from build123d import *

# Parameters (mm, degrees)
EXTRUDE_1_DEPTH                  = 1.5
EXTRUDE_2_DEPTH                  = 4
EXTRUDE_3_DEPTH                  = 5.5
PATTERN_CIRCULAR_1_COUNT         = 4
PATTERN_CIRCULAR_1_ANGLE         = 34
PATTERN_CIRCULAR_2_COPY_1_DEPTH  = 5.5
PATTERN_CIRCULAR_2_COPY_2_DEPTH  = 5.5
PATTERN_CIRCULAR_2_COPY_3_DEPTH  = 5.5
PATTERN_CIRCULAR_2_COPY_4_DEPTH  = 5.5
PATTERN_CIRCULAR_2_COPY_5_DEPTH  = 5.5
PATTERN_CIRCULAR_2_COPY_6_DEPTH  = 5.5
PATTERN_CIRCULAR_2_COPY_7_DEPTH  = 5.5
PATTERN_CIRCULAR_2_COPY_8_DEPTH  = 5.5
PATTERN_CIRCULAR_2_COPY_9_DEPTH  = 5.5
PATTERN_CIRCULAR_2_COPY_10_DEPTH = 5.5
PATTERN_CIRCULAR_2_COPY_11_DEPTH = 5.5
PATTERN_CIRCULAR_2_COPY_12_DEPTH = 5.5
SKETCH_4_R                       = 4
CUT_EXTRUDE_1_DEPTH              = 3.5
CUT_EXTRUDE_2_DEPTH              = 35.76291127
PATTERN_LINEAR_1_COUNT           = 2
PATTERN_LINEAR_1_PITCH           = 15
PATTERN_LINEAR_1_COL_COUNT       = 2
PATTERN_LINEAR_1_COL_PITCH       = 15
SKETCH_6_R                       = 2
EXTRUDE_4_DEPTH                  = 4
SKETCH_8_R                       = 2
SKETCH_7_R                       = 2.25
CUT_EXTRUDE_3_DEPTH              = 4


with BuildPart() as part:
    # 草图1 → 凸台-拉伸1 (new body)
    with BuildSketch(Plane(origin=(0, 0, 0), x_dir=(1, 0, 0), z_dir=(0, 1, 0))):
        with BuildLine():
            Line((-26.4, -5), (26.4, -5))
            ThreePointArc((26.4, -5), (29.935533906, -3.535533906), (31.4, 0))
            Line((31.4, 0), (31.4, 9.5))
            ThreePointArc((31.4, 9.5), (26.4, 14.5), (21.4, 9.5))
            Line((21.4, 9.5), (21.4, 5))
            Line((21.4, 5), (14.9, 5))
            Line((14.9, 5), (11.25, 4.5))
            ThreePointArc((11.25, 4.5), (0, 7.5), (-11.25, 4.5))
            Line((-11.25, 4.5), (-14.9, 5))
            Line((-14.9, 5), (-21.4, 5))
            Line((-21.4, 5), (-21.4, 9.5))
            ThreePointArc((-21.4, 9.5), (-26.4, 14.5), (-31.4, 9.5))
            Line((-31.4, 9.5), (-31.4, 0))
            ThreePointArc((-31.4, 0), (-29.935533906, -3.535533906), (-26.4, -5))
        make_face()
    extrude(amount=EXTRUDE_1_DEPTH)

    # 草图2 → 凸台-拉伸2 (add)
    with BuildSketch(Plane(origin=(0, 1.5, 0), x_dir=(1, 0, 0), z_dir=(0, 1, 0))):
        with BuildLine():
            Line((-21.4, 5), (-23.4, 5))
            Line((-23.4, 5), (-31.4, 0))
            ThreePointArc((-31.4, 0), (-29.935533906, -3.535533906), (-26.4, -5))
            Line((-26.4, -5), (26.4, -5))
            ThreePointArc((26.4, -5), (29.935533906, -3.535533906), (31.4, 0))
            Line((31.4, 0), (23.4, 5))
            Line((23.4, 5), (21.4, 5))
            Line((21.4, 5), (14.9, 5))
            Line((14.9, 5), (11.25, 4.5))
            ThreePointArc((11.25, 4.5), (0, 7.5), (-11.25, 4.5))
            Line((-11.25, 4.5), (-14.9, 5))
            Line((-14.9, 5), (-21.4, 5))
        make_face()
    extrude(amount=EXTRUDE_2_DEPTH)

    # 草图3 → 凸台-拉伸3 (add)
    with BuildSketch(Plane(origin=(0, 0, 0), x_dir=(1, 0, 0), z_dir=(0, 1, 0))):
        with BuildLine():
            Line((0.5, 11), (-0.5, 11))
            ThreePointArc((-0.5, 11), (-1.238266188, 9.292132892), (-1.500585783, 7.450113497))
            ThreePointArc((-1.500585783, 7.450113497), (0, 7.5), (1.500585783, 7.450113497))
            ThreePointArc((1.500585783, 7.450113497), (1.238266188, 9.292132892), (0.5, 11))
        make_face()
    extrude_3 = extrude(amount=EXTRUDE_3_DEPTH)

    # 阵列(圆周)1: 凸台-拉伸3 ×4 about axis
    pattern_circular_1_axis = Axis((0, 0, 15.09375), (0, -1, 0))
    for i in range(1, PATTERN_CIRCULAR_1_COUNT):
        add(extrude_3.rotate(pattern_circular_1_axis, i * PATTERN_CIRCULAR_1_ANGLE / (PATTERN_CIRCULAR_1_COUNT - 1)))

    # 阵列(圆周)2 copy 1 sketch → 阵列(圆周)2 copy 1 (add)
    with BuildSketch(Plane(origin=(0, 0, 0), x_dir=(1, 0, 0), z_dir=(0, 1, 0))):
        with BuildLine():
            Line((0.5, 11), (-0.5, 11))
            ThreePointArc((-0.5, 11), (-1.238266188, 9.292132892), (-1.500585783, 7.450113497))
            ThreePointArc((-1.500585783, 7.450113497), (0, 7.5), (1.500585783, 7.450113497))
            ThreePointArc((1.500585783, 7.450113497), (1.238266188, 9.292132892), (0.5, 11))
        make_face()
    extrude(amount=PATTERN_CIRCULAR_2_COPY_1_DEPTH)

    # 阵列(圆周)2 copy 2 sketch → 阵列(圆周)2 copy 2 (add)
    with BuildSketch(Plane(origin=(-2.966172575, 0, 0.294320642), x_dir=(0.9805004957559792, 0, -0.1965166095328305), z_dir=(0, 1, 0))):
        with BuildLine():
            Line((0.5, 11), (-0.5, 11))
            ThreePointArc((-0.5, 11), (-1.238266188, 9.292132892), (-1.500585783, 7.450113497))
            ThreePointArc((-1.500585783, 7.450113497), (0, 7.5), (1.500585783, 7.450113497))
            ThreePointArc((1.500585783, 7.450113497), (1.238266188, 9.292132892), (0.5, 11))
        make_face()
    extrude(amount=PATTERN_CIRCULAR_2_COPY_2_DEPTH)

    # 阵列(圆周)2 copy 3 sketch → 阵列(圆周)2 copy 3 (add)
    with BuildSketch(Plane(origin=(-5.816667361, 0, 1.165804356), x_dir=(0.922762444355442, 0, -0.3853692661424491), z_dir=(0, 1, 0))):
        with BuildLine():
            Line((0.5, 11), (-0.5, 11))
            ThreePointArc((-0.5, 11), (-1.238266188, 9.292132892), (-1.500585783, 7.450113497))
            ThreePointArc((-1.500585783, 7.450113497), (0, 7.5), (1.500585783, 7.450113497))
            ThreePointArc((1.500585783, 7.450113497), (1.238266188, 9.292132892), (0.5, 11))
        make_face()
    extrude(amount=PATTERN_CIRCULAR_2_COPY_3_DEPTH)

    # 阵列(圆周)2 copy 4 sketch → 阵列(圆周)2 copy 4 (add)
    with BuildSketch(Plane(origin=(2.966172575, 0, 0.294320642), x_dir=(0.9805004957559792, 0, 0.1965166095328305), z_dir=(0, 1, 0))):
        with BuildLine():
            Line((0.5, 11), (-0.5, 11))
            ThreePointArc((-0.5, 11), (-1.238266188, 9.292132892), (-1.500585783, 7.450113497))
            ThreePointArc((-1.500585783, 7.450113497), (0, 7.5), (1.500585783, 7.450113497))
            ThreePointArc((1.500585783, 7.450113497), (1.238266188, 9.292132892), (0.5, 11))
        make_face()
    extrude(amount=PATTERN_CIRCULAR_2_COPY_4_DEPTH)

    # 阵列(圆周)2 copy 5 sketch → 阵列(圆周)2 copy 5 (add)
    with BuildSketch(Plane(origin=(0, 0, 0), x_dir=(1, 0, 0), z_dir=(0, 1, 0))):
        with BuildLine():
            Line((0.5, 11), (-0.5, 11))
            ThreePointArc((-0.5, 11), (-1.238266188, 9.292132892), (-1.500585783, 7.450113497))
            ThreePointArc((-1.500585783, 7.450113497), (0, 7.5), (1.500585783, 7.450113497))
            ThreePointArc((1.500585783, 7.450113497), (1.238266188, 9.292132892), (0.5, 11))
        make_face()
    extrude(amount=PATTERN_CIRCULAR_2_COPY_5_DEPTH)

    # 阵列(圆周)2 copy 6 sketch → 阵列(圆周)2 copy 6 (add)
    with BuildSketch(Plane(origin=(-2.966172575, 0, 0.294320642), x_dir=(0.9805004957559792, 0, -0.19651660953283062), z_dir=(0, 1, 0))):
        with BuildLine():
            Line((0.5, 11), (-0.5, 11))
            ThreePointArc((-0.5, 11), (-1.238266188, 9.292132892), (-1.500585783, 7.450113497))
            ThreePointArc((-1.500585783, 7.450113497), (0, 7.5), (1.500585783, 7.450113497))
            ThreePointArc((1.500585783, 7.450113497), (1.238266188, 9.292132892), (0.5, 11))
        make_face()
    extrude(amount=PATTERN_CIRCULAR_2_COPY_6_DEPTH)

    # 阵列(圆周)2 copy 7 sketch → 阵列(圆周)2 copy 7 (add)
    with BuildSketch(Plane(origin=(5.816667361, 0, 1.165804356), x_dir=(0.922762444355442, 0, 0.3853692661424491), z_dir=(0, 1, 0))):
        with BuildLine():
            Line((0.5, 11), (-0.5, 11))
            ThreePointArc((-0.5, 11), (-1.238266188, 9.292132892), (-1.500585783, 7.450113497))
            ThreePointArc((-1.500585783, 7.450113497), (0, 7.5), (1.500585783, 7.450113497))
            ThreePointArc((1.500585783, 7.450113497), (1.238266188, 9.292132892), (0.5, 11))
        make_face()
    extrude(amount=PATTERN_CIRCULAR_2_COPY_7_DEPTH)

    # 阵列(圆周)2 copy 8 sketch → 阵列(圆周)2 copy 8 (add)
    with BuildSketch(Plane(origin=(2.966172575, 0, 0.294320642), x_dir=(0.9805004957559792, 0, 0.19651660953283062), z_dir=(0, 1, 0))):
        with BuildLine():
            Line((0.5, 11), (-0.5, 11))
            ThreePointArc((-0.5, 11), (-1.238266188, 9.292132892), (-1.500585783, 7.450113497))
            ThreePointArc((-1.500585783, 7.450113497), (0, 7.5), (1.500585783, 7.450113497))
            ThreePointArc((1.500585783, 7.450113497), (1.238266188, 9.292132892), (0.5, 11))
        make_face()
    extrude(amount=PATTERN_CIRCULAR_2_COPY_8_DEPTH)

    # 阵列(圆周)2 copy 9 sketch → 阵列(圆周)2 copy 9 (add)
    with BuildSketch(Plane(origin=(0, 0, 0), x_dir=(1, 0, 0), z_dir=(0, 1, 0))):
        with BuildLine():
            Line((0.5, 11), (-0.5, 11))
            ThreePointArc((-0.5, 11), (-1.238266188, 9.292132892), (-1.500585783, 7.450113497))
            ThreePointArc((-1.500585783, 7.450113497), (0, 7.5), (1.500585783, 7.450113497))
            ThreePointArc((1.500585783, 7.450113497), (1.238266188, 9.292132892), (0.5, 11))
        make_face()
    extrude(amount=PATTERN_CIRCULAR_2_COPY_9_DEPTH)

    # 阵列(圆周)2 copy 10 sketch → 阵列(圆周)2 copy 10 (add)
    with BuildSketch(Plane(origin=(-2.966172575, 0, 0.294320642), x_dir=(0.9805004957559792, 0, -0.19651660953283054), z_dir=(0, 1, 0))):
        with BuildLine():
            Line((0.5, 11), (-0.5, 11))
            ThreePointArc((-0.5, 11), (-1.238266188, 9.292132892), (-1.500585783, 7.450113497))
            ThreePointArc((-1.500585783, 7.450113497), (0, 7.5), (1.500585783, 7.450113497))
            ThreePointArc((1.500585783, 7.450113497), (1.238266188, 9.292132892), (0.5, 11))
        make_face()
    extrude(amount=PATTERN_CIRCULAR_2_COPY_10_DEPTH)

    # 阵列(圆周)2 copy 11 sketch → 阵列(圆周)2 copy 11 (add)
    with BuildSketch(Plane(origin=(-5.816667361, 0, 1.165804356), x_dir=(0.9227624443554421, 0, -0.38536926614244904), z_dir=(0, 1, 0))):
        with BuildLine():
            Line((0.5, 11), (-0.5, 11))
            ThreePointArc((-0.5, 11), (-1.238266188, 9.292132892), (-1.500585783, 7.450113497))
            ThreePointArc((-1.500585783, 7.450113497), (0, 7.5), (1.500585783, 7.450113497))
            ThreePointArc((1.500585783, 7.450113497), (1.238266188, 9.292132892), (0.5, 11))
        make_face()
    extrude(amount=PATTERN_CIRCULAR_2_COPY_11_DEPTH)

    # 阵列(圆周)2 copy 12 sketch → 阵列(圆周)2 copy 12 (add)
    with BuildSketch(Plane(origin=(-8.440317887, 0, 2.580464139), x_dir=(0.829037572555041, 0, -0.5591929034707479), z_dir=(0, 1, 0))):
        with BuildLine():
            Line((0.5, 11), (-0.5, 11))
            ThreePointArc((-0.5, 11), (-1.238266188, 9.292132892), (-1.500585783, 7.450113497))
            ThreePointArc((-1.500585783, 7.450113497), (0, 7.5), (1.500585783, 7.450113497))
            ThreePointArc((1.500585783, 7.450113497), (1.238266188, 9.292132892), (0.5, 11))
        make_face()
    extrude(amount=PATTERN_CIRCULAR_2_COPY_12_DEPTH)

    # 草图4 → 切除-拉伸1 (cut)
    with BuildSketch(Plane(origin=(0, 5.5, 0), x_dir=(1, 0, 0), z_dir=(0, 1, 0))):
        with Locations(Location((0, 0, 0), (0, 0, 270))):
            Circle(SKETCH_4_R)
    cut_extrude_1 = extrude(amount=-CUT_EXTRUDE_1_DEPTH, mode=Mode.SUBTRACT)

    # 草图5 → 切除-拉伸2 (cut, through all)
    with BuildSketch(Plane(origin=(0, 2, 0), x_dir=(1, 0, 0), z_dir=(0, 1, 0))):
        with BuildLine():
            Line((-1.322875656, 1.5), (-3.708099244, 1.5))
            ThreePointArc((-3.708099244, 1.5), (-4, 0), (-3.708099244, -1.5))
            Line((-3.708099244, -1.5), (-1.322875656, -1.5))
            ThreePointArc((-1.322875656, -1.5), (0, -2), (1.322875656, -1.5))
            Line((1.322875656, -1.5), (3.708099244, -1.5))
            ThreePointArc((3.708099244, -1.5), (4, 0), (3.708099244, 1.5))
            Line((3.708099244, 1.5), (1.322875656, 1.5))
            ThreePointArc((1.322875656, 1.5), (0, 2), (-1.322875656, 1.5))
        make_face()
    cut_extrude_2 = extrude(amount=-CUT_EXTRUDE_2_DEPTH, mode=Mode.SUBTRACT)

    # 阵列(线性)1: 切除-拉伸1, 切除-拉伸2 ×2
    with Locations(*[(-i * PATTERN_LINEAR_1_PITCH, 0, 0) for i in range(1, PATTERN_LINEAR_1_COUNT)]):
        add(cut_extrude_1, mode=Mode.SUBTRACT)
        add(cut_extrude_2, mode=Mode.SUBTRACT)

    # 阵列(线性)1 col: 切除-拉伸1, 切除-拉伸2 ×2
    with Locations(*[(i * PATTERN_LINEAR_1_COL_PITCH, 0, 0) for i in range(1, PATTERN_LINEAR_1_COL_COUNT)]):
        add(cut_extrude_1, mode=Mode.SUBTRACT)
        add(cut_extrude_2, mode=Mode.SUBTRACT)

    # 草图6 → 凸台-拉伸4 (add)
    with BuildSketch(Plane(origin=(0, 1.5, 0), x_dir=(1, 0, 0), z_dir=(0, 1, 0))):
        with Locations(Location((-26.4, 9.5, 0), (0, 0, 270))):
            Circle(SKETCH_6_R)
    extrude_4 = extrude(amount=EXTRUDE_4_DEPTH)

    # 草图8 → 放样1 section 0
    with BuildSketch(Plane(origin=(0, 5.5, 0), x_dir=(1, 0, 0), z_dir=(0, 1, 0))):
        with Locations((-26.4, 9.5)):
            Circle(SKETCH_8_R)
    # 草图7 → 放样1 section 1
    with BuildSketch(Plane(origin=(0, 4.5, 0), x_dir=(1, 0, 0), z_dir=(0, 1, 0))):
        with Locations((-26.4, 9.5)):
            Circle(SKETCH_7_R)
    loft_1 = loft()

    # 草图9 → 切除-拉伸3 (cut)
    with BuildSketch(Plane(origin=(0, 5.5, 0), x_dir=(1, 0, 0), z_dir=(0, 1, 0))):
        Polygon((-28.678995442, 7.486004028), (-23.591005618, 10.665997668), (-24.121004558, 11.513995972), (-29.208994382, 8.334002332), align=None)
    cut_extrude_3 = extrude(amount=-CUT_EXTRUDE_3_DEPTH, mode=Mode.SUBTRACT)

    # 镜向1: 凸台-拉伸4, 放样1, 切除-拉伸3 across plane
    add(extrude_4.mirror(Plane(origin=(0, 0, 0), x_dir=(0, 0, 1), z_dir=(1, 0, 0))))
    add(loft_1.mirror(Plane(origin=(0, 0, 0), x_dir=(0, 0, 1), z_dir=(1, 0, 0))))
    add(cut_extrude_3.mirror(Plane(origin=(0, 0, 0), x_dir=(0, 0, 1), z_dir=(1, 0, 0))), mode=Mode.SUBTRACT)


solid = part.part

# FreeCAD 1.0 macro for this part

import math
import FreeCAD as App
import Part
import Sketcher

V = App.Vector
Q = App.Units.Quantity

doc = App.newDocument("Part")
body = doc.addObject("PartDesign::Body", "Body")

# Sketch on XZ plane
sketch1 = body.newObject("Sketcher::SketchObject", "Sketch")
sketch1.AttachmentSupport = (doc.getObject("XZ_Plane"), [""])
sketch1.MapMode = "FlatFace"
sketch1.addGeometry(Part.LineSegment(V(-26.4, 5, 0), V(26.4, 5, 0)), False)
sketch1.addGeometry(Part.ArcOfCircle(Part.Circle(V(26.4, 0, 0), V(0, 0, 1), 5), math.radians(0), math.radians(90)), False)
sketch1.addGeometry(Part.LineSegment(V(31.4, 0, 0), V(31.4, -9.5, 0)), False)
sketch1.addGeometry(Part.ArcOfCircle(Part.Circle(V(26.4, -9.5, 0), V(0, 0, 1), 5), math.radians(180), math.radians(360)), False)
sketch1.addGeometry(Part.LineSegment(V(21.4, -9.5, 0), V(21.4, -5, 0)), False)
sketch1.addGeometry(Part.LineSegment(V(21.4, -5, 0), V(14.9, -5, 0)), False)
sketch1.addGeometry(Part.LineSegment(V(14.9, -5, 0), V(11.2, -4.5, 0)), False)
sketch1.addGeometry(Part.ArcOfCircle(Part.Circle(V(0, 15.1, 0), V(0, 0, 1), 22.6), math.radians(-120), math.radians(-60)), False)
sketch1.addGeometry(Part.LineSegment(V(-11.2, -4.5, 0), V(-14.9, -5, 0)), False)
sketch1.addGeometry(Part.LineSegment(V(-14.9, -5, 0), V(-21.4, -5, 0)), False)
sketch1.addGeometry(Part.LineSegment(V(-21.4, -5, 0), V(-21.4, -9.5, 0)), False)
sketch1.addGeometry(Part.ArcOfCircle(Part.Circle(V(-26.4, -9.5, 0), V(0, 0, 1), 5), math.radians(180), math.radians(360)), False)
sketch1.addGeometry(Part.LineSegment(V(-31.4, -9.5, 0), V(-31.4, 0, 0)), False)
sketch1.addGeometry(Part.ArcOfCircle(Part.Circle(V(-26.4, 0, 0), V(0, 0, 1), 5), math.radians(90), math.radians(180)), False)
sketch1.addConstraint(Sketcher.Constraint("Tangent", 0, 2, 1, 2))
sketch1.addConstraint(Sketcher.Constraint("Tangent", 1, 1, 2, 1))
sketch1.addConstraint(Sketcher.Constraint("Tangent", 2, 2, 3, 2))
sketch1.addConstraint(Sketcher.Constraint("Tangent", 3, 1, 4, 1))
sketch1.addConstraint(Sketcher.Constraint("Coincident", 4, 2, 5, 1))
sketch1.addConstraint(Sketcher.Constraint("Coincident", 5, 2, 6, 1))
sketch1.addConstraint(Sketcher.Constraint("Coincident", 6, 2, 7, 2))
sketch1.addConstraint(Sketcher.Constraint("Coincident", 7, 1, 8, 1))
sketch1.addConstraint(Sketcher.Constraint("Coincident", 8, 2, 9, 1))
sketch1.addConstraint(Sketcher.Constraint("Coincident", 9, 2, 10, 1))
sketch1.addConstraint(Sketcher.Constraint("Tangent", 10, 2, 11, 2))
sketch1.addConstraint(Sketcher.Constraint("Tangent", 11, 1, 12, 1))
sketch1.addConstraint(Sketcher.Constraint("Tangent", 12, 2, 13, 2))
sketch1.addConstraint(Sketcher.Constraint("Tangent", 13, 1, 0, 1))
sketch1.addConstraint(Sketcher.Constraint("Horizontal", 0))
sketch1.addConstraint(Sketcher.Constraint("Vertical", 2))
sketch1.addConstraint(Sketcher.Constraint("Vertical", 4))
sketch1.addConstraint(Sketcher.Constraint("Horizontal", 5))
sketch1.addConstraint(Sketcher.Constraint("Horizontal", 9))
sketch1.addConstraint(Sketcher.Constraint("Vertical", 10))
sketch1.addConstraint(Sketcher.Constraint("Vertical", 12))
sketch1.addConstraint(Sketcher.Constraint("Equal", 1, 3))
sketch1.addConstraint(Sketcher.Constraint("Equal", 3, 11))
sketch1.addConstraint(Sketcher.Constraint("Equal", 11, 13))
sketch1.addConstraint(Sketcher.Constraint("Symmetric", 1, 3, 13, 3, -1, 1))
sketch1.addConstraint(Sketcher.Constraint("Symmetric", 6, 2, 7, 1, -2))
sketch1.addConstraint(Sketcher.Constraint("Symmetric", 5, 2, 8, 2, -2))
sketch1.addConstraint(Sketcher.Constraint("Horizontal", 3, 3, 11, 3))
sketch1.addConstraint(Sketcher.Constraint("Radius", 1, Q("5 mm")))
sketch1.addConstraint(Sketcher.Constraint("DistanceX", 0, 1, 0, 2, Q("52.8 mm")))
sketch1.addConstraint(Sketcher.Constraint("DistanceX", 5, 2, 5, 1, Q("6.5 mm")))
sketch1.addConstraint(Sketcher.Constraint("DistanceY", 2, 2, 2, 1, Q("9.5 mm")))
sketch1.addConstraint(Sketcher.Constraint("DistanceY", 4, 1, 4, 2, Q("4.5 mm")))
sketch1.addConstraint(Sketcher.Constraint("DistanceY", 3, 1, 6, 2, Q("5 mm")))
sketch1.addConstraint(Sketcher.Constraint("DistanceX", 7, 1, 6, 2, Q("22.5 mm")))
sketch1.addConstraint(Sketcher.Constraint("Radius", 7, Q("22.59375 mm")))
pad1 = body.newObject("PartDesign::Pad", "Pad")
pad1.Profile = sketch1
pad1.Length = 1.5
pad1.Reversed = True

# Sketch on XZ plane
sketch2 = body.newObject("Sketcher::SketchObject", "Sketch001")
sketch2.AttachmentSupport = (doc.getObject("XZ_Plane"), [""])
sketch2.MapMode = "FlatFace"
sketch2.AttachmentOffset = App.Placement(V(0, 0, -1.5), App.Rotation())
sketch2.addGeometry(Part.LineSegment(V(-23.4, -5, 0), V(-31.4, 0, 0)), False)
sketch2.addGeometry(Part.ArcOfCircle(Part.Circle(V(-26.4, 0, 0), V(0, 0, 1), 5), math.radians(90), math.radians(180)), False)
sketch2.addGeometry(Part.LineSegment(V(-26.4, 5, 0), V(26.4, 5, 0)), False)
sketch2.addGeometry(Part.ArcOfCircle(Part.Circle(V(26.4, 0, 0), V(0, 0, 1), 5), math.radians(0), math.radians(90)), False)
sketch2.addGeometry(Part.LineSegment(V(31.4, 0, 0), V(23.4, -5, 0)), False)
sketch2.addGeometry(Part.LineSegment(V(23.4, -5, 0), V(14.9, -5, 0)), False)
sketch2.addGeometry(Part.LineSegment(V(14.9, -5, 0), V(11.2, -4.5, 0)), False)
sketch2.addGeometry(Part.ArcOfCircle(Part.Circle(V(0, 15.1, 0), V(0, 0, 1), 22.6), math.radians(-120), math.radians(-60)), False)
sketch2.addGeometry(Part.LineSegment(V(-11.2, -4.5, 0), V(-14.9, -5, 0)), False)
sketch2.addGeometry(Part.LineSegment(V(-14.9, -5, 0), V(-23.4, -5, 0)), False)
sketch2.addConstraint(Sketcher.Constraint("Coincident", 0, 2, 1, 2))
sketch2.addConstraint(Sketcher.Constraint("Tangent", 1, 1, 2, 1))
sketch2.addConstraint(Sketcher.Constraint("Tangent", 2, 2, 3, 2))
sketch2.addConstraint(Sketcher.Constraint("Coincident", 3, 1, 4, 1))
sketch2.addConstraint(Sketcher.Constraint("Coincident", 4, 2, 5, 1))
sketch2.addConstraint(Sketcher.Constraint("Coincident", 5, 2, 6, 1))
sketch2.addConstraint(Sketcher.Constraint("Coincident", 6, 2, 7, 2))
sketch2.addConstraint(Sketcher.Constraint("Coincident", 7, 1, 8, 1))
sketch2.addConstraint(Sketcher.Constraint("Coincident", 8, 2, 9, 1))
sketch2.addConstraint(Sketcher.Constraint("Coincident", 9, 2, 0, 1))
sketch2.addConstraint(Sketcher.Constraint("Horizontal", 2))
sketch2.addConstraint(Sketcher.Constraint("Horizontal", 5))
sketch2.addConstraint(Sketcher.Constraint("Horizontal", 9))
sketch2.addConstraint(Sketcher.Constraint("Equal", 1, 3))
sketch2.addConstraint(Sketcher.Constraint("Symmetric", 1, 3, 3, 3, -1, 1))
sketch2.addConstraint(Sketcher.Constraint("Symmetric", 6, 2, 7, 1, -2))
sketch2.addConstraint(Sketcher.Constraint("Symmetric", 5, 2, 8, 2, -2))
sketch2.addConstraint(Sketcher.Constraint("PointOnObject", 0, 2, -1))
sketch2.addConstraint(Sketcher.Constraint("PointOnObject", 3, 1, -1))
sketch2.addConstraint(Sketcher.Constraint("Equal", 5, 9))
sketch2.addConstraint(Sketcher.Constraint("Radius", 1, Q("5 mm")))
sketch2.addConstraint(Sketcher.Constraint("DistanceX", 2, 1, 2, 2, Q("52.8 mm")))
sketch2.addConstraint(Sketcher.Constraint("DistanceX", 5, 2, 5, 1, Q("8.5 mm")))
sketch2.addConstraint(Sketcher.Constraint("DistanceY", 4, 2, -1, 1, Q("5 mm")))
sketch2.addConstraint(Sketcher.Constraint("DistanceX", 4, 2, 3, 3, Q("3 mm")))
sketch2.addConstraint(Sketcher.Constraint("DistanceY", 6, 2, -1, 1, Q("4.5 mm")))
sketch2.addConstraint(Sketcher.Constraint("DistanceX", 7, 1, 6, 2, Q("22.5 mm")))
sketch2.addConstraint(Sketcher.Constraint("Radius", 7, Q("22.59375 mm")))
pad2 = body.newObject("PartDesign::Pad", "Pad001")
pad2.Profile = sketch2
pad2.Length = 4
pad2.Reversed = True

# Sketch on XZ plane
sketch3 = body.newObject("Sketcher::SketchObject", "Sketch002")
sketch3.AttachmentSupport = (doc.getObject("XZ_Plane"), [""])
sketch3.MapMode = "FlatFace"
sketch3.addGeometry(Part.LineSegment(V(0.5, -11, 0), V(-0.5, -11, 0)), False)
sketch3.addGeometry(Part.ArcOfCircle(Part.Circle(V(5.5, -7.4, 0), V(0, 0, 1), 7), math.radians(-180), math.radians(-149)), False)
sketch3.addGeometry(Part.ArcOfCircle(Part.Circle(V(0, 15.1, 0), V(0, 0, 1), 22.6), math.radians(-93.81), math.radians(-86.19)), False)
sketch3.addGeometry(Part.ArcOfCircle(Part.Circle(V(-5.5, -7.4, 0), V(0, 0, 1), 7), math.radians(-31), math.radians(0)), False)
sketch3.addConstraint(Sketcher.Constraint("Coincident", 0, 2, 1, 2))
sketch3.addConstraint(Sketcher.Constraint("Coincident", 1, 1, 2, 1))
sketch3.addConstraint(Sketcher.Constraint("Coincident", 2, 2, 3, 2))
sketch3.addConstraint(Sketcher.Constraint("Coincident", 3, 1, 0, 1))
sketch3.addConstraint(Sketcher.Constraint("Horizontal", 0))
sketch3.addConstraint(Sketcher.Constraint("Equal", 1, 3))
sketch3.addConstraint(Sketcher.Constraint("Symmetric", 1, 3, 3, 3, -2))
sketch3.addConstraint(Sketcher.Constraint("PointOnObject", 2, 3, -2))
sketch3.addConstraint(Sketcher.Constraint("DistanceX", 0, 2, 0, 1, Q("1 mm")))
sketch3.addConstraint(Sketcher.Constraint("DistanceY", 0, 2, -1, 1, Q("11 mm")))
sketch3.addConstraint(Sketcher.Constraint("DistanceX", 3, 3, 1, 3, Q("11 mm")))
sketch3.addConstraint(Sketcher.Constraint("Radius", 1, Q("7.00082 mm")))
sketch3.addConstraint(Sketcher.Constraint("Radius", 2, Q("22.59375 mm")))
sketch3.addConstraint(Sketcher.Constraint("DistanceY", -1, 1, 2, 3, Q("15.09375 mm")))
pad3 = body.newObject("PartDesign::Pad", "Pad002")
pad3.Profile = sketch3
pad3.Length = 5.5
pad3.Reversed = True
doc.recompute()

datumline = body.newObject("PartDesign::Line", "DatumLine")
datumline.Placement = App.Placement(V(0, 0, 15.09375), App.Rotation(V(0, 0, 1), V(0, -1, 0)))
polarpattern = body.newObject("PartDesign::PolarPattern", "PolarPattern")
polarpattern.Originals = [pad3]
polarpattern.Axis = (datumline, [""])
polarpattern.Angle = 34
polarpattern.Occurrences = 4
body.Tip = polarpattern

# Sketch on XZ plane
sketch4 = body.newObject("Sketcher::SketchObject", "Sketch003")
sketch4.AttachmentSupport = (doc.getObject("XZ_Plane"), [""])
sketch4.MapMode = "FlatFace"
sketch4.addGeometry(Part.LineSegment(V(0.5, -11, 0), V(-0.5, -11, 0)), False)
sketch4.addGeometry(Part.ArcOfCircle(Part.Circle(V(5.5, -7.4, 0), V(0, 0, 1), 7), math.radians(-180), math.radians(-149)), False)
sketch4.addGeometry(Part.ArcOfCircle(Part.Circle(V(0, 15.1, 0), V(0, 0, 1), 22.6), math.radians(-93.81), math.radians(-86.19)), False)
sketch4.addGeometry(Part.ArcOfCircle(Part.Circle(V(-5.5, -7.4, 0), V(0, 0, 1), 7), math.radians(-31), math.radians(0)), False)
sketch4.addConstraint(Sketcher.Constraint("Coincident", 0, 2, 1, 2))
sketch4.addConstraint(Sketcher.Constraint("Coincident", 1, 1, 2, 1))
sketch4.addConstraint(Sketcher.Constraint("Coincident", 2, 2, 3, 2))
sketch4.addConstraint(Sketcher.Constraint("Coincident", 3, 1, 0, 1))
sketch4.addConstraint(Sketcher.Constraint("Horizontal", 0))
sketch4.addConstraint(Sketcher.Constraint("Equal", 1, 3))
sketch4.addConstraint(Sketcher.Constraint("Symmetric", 1, 3, 3, 3, -2))
sketch4.addConstraint(Sketcher.Constraint("PointOnObject", 2, 3, -2))
sketch4.addConstraint(Sketcher.Constraint("DistanceX", 0, 2, 0, 1, Q("1 mm")))
sketch4.addConstraint(Sketcher.Constraint("DistanceY", 0, 2, -1, 1, Q("11 mm")))
sketch4.addConstraint(Sketcher.Constraint("DistanceX", 3, 3, 1, 3, Q("11 mm")))
sketch4.addConstraint(Sketcher.Constraint("Radius", 1, Q("7.00082 mm")))
sketch4.addConstraint(Sketcher.Constraint("Radius", 2, Q("22.59375 mm")))
sketch4.addConstraint(Sketcher.Constraint("DistanceY", -1, 1, 2, 3, Q("15.09375 mm")))
pad4 = body.newObject("PartDesign::Pad", "Pad003")
pad4.Profile = sketch4
pad4.Length = 5.5
pad4.Reversed = True

# Sketch on XZ plane
sketch5 = body.newObject("Sketcher::SketchObject", "Sketch004")
sketch5.AttachmentSupport = (doc.getObject("XZ_Plane"), [""])
sketch5.MapMode = "FlatFace"
sketch5.addGeometry(Part.LineSegment(V(-4.6, -10.6, 0), V(-5.6, -10.4, 0)), False)
sketch5.addGeometry(Part.ArcOfCircle(Part.Circle(V(1, -8, 0), V(0, 0, 1), 7), math.radians(169), math.radians(200)), False)
sketch5.addGeometry(Part.ArcOfCircle(Part.Circle(V(0, 15.1, 0), V(0, 0, 1), 22.6), math.radians(-105.14), math.radians(-97.53)), False)
sketch5.addGeometry(Part.ArcOfCircle(Part.Circle(V(-9.8, -5.9, 0), V(0, 0, 1), 7), math.radians(-42), math.radians(-12)), False)
sketch5.addConstraint(Sketcher.Constraint("Coincident", 0, 2, 1, 2))
sketch5.addConstraint(Sketcher.Constraint("Coincident", 1, 1, 2, 1))
sketch5.addConstraint(Sketcher.Constraint("Coincident", 2, 2, 3, 2))
sketch5.addConstraint(Sketcher.Constraint("Coincident", 3, 1, 0, 1))
sketch5.addConstraint(Sketcher.Constraint("Equal", 1, 3))
sketch5.addConstraint(Sketcher.Constraint("PointOnObject", 2, 3, -2))
sketch5.addConstraint(Sketcher.Constraint("Distance", 0, Q("1 mm")))
sketch5.addConstraint(Sketcher.Constraint("Radius", 1, Q("7.00082 mm")))
sketch5.addConstraint(Sketcher.Constraint("Radius", 2, Q("22.59375 mm")))
sketch5.addConstraint(Sketcher.Constraint("DistanceX", 0, 2, 3, 1, Q("0.9805 mm")))
sketch5.addConstraint(Sketcher.Constraint("DistanceX", -1, 1, 1, 3, Q("0.973761 mm")))
sketch5.addConstraint(Sketcher.Constraint("DistanceY", 1, 3, -1, 1, Q("8.035221 mm")))
sketch5.addConstraint(Sketcher.Constraint("DistanceY", -1, 1, 2, 3, Q("15.09375 mm")))
sketch5.addConstraint(Sketcher.Constraint("DistanceY", 3, 3, -1, 1, Q("5.873538 mm")))
sketch5.addConstraint(Sketcher.Constraint("DistanceX", 2, 2, -1, 1, Q("2.958919 mm")))
pad5 = body.newObject("PartDesign::Pad", "Pad004")
pad5.Profile = sketch5
pad5.Length = 5.5
pad5.Reversed = True

# Sketch on XZ plane
sketch6 = body.newObject("Sketcher::SketchObject", "Sketch005")
sketch6.AttachmentSupport = (doc.getObject("XZ_Plane"), [""])
sketch6.MapMode = "FlatFace"
sketch6.addGeometry(Part.LineSegment(V(-9.6, -9.2, 0), V(-10.5, -8.8, 0)), False)
sketch6.addGeometry(Part.ArcOfCircle(Part.Circle(V(-3.6, -7.8, 0), V(0, 0, 1), 7), math.radians(158), math.radians(188)), False)
sketch6.addGeometry(Part.ArcOfCircle(Part.Circle(V(0, 15.1, 0), V(0, 0, 1), 22.6), math.radians(-116.47), math.radians(-108.86)), False)
sketch6.addGeometry(Part.ArcOfCircle(Part.Circle(V(-13.7, -3.5, 0), V(0, 0, 1), 7), math.radians(-54), math.radians(-23)), False)
sketch6.addConstraint(Sketcher.Constraint("Coincident", 0, 2, 1, 2))
sketch6.addConstraint(Sketcher.Constraint("Coincident", 1, 1, 2, 1))
sketch6.addConstraint(Sketcher.Constraint("Coincident", 2, 2, 3, 2))
sketch6.addConstraint(Sketcher.Constraint("Coincident", 3, 1, 0, 1))
sketch6.addConstraint(Sketcher.Constraint("Equal", 1, 3))
sketch6.addConstraint(Sketcher.Constraint("PointOnObject", 2, 3, -2))
sketch6.addConstraint(Sketcher.Constraint("Distance", 0, Q("1 mm")))
sketch6.addConstraint(Sketcher.Constraint("Radius", 1, Q("7.00082 mm")))
sketch6.addConstraint(Sketcher.Constraint("Radius", 2, Q("22.59375 mm")))
sketch6.addConstraint(Sketcher.Constraint("DistanceY", 1, 1, -1, 1, Q("5.130601 mm")))
sketch6.addConstraint(Sketcher.Constraint("DistanceY", -1, 1, 2, 3, Q("15.09375 mm")))
sketch6.addConstraint(Sketcher.Constraint("DistanceX", 3, 3, -1, 1, Q("13.740841 mm")))
sketch6.addConstraint(Sketcher.Constraint("DistanceX", 0, 2, -1, 1, Q("10.517111 mm")))
sketch6.addConstraint(Sketcher.Constraint("DistanceY", 2, 2, -1, 1, Q("6.28716 mm")))
sketch6.addConstraint(Sketcher.Constraint("DistanceX", 3, 1, -1, 1, Q("9.594348 mm")))
pad6 = body.newObject("PartDesign::Pad", "Pad005")
pad6.Profile = sketch6
pad6.Length = 5.5
pad6.Reversed = True

# Sketch on XZ plane
sketch7 = body.newObject("Sketcher::SketchObject", "Sketch006")
sketch7.AttachmentSupport = (doc.getObject("XZ_Plane"), [""])
sketch7.MapMode = "FlatFace"
sketch7.addGeometry(Part.LineSegment(V(5.6, -10.4, 0), V(4.6, -10.6, 0)), False)
sketch7.addGeometry(Part.ArcOfCircle(Part.Circle(V(9.8, -5.9, 0), V(0, 0, 1), 7), math.radians(-168), math.radians(-138)), False)
sketch7.addGeometry(Part.ArcOfCircle(Part.Circle(V(0, 15.1, 0), V(0, 0, 1), 22.6), math.radians(-82.47), math.radians(-74.86)), False)
sketch7.addGeometry(Part.ArcOfCircle(Part.Circle(V(-1, -8, 0), V(0, 0, 1), 7), math.radians(-20), math.radians(11)), False)
sketch7.addConstraint(Sketcher.Constraint("Coincident", 0, 2, 1, 2))
sketch7.addConstraint(Sketcher.Constraint("Coincident", 1, 1, 2, 1))
sketch7.addConstraint(Sketcher.Constraint("Coincident", 2, 2, 3, 2))
sketch7.addConstraint(Sketcher.Constraint("Coincident", 3, 1, 0, 1))
sketch7.addConstraint(Sketcher.Constraint("Equal", 1, 3))
sketch7.addConstraint(Sketcher.Constraint("PointOnObject", 2, 3, -2))
sketch7.addConstraint(Sketcher.Constraint("Distance", 0, Q("1 mm")))
sketch7.addConstraint(Sketcher.Constraint("Radius", 1, Q("7.00082 mm")))
sketch7.addConstraint(Sketcher.Constraint("Radius", 2, Q("22.59375 mm")))
sketch7.addConstraint(Sketcher.Constraint("DistanceX", 0, 2, 3, 1, Q("0.9805 mm")))
sketch7.addConstraint(Sketcher.Constraint("DistanceY", 1, 3, -1, 1, Q("5.873538 mm")))
sketch7.addConstraint(Sketcher.Constraint("DistanceY", -1, 1, 2, 3, Q("15.09375 mm")))
sketch7.addConstraint(Sketcher.Constraint("DistanceX", 3, 3, -1, 1, Q("0.973761 mm")))
sketch7.addConstraint(Sketcher.Constraint("DistanceY", 3, 3, -1, 1, Q("8.035221 mm")))
sketch7.addConstraint(Sketcher.Constraint("DistanceX", -1, 1, 1, 1, Q("2.958919 mm")))
pad7 = body.newObject("PartDesign::Pad", "Pad006")
pad7.Profile = sketch7
pad7.Length = 5.5
pad7.Reversed = True

# Sketch on XZ plane
sketch8 = body.newObject("Sketcher::SketchObject", "Sketch007")
sketch8.AttachmentSupport = (doc.getObject("XZ_Plane"), [""])
sketch8.MapMode = "FlatFace"
sketch8.addGeometry(Part.LineSegment(V(0.5, -11, 0), V(-0.5, -11, 0)), False)
sketch8.addGeometry(Part.ArcOfCircle(Part.Circle(V(5.5, -7.4, 0), V(0, 0, 1), 7), math.radians(-180), math.radians(-149)), False)
sketch8.addGeometry(Part.ArcOfCircle(Part.Circle(V(0, 15.1, 0), V(0, 0, 1), 22.6), math.radians(-93.81), math.radians(-86.19)), False)
sketch8.addGeometry(Part.ArcOfCircle(Part.Circle(V(-5.5, -7.4, 0), V(0, 0, 1), 7), math.radians(-31), math.radians(0)), False)
sketch8.addConstraint(Sketcher.Constraint("Coincident", 0, 2, 1, 2))
sketch8.addConstraint(Sketcher.Constraint("Coincident", 1, 1, 2, 1))
sketch8.addConstraint(Sketcher.Constraint("Coincident", 2, 2, 3, 2))
sketch8.addConstraint(Sketcher.Constraint("Coincident", 3, 1, 0, 1))
sketch8.addConstraint(Sketcher.Constraint("Horizontal", 0))
sketch8.addConstraint(Sketcher.Constraint("Equal", 1, 3))
sketch8.addConstraint(Sketcher.Constraint("Symmetric", 1, 3, 3, 3, -2))
sketch8.addConstraint(Sketcher.Constraint("PointOnObject", 2, 3, -2))
sketch8.addConstraint(Sketcher.Constraint("DistanceX", 0, 2, 0, 1, Q("1 mm")))
sketch8.addConstraint(Sketcher.Constraint("DistanceY", 0, 2, -1, 1, Q("11 mm")))
sketch8.addConstraint(Sketcher.Constraint("DistanceX", 3, 3, 1, 3, Q("11 mm")))
sketch8.addConstraint(Sketcher.Constraint("Radius", 1, Q("7.00082 mm")))
sketch8.addConstraint(Sketcher.Constraint("Radius", 2, Q("22.59375 mm")))
sketch8.addConstraint(Sketcher.Constraint("DistanceY", -1, 1, 2, 3, Q("15.09375 mm")))
pad8 = body.newObject("PartDesign::Pad", "Pad007")
pad8.Profile = sketch8
pad8.Length = 5.5
pad8.Reversed = True

# Sketch on XZ plane
sketch9 = body.newObject("Sketcher::SketchObject", "Sketch008")
sketch9.AttachmentSupport = (doc.getObject("XZ_Plane"), [""])
sketch9.MapMode = "FlatFace"
sketch9.addGeometry(Part.LineSegment(V(-4.6, -10.6, 0), V(-5.6, -10.4, 0)), False)
sketch9.addGeometry(Part.ArcOfCircle(Part.Circle(V(1, -8, 0), V(0, 0, 1), 7), math.radians(169), math.radians(200)), False)
sketch9.addGeometry(Part.ArcOfCircle(Part.Circle(V(0, 15.1, 0), V(0, 0, 1), 22.6), math.radians(-105.14), math.radians(-97.53)), False)
sketch9.addGeometry(Part.ArcOfCircle(Part.Circle(V(-9.8, -5.9, 0), V(0, 0, 1), 7), math.radians(-42), math.radians(-12)), False)
sketch9.addConstraint(Sketcher.Constraint("Coincident", 0, 2, 1, 2))
sketch9.addConstraint(Sketcher.Constraint("Coincident", 1, 1, 2, 1))
sketch9.addConstraint(Sketcher.Constraint("Coincident", 2, 2, 3, 2))
sketch9.addConstraint(Sketcher.Constraint("Coincident", 3, 1, 0, 1))
sketch9.addConstraint(Sketcher.Constraint("Equal", 1, 3))
sketch9.addConstraint(Sketcher.Constraint("PointOnObject", 2, 3, -2))
sketch9.addConstraint(Sketcher.Constraint("Distance", 0, Q("1 mm")))
sketch9.addConstraint(Sketcher.Constraint("Radius", 1, Q("7.00082 mm")))
sketch9.addConstraint(Sketcher.Constraint("Radius", 2, Q("22.59375 mm")))
sketch9.addConstraint(Sketcher.Constraint("DistanceX", 0, 2, 3, 1, Q("0.9805 mm")))
sketch9.addConstraint(Sketcher.Constraint("DistanceX", -1, 1, 1, 3, Q("0.973761 mm")))
sketch9.addConstraint(Sketcher.Constraint("DistanceY", 1, 3, -1, 1, Q("8.035221 mm")))
sketch9.addConstraint(Sketcher.Constraint("DistanceY", -1, 1, 2, 3, Q("15.09375 mm")))
sketch9.addConstraint(Sketcher.Constraint("DistanceY", 3, 3, -1, 1, Q("5.873538 mm")))
sketch9.addConstraint(Sketcher.Constraint("DistanceX", 2, 2, -1, 1, Q("2.958919 mm")))
pad9 = body.newObject("PartDesign::Pad", "Pad008")
pad9.Profile = sketch9
pad9.Length = 5.5
pad9.Reversed = True

# Sketch on XZ plane
sketch10 = body.newObject("Sketcher::SketchObject", "Sketch009")
sketch10.AttachmentSupport = (doc.getObject("XZ_Plane"), [""])
sketch10.MapMode = "FlatFace"
sketch10.addGeometry(Part.LineSegment(V(10.5, -8.8, 0), V(9.6, -9.2, 0)), False)
sketch10.addGeometry(Part.ArcOfCircle(Part.Circle(V(13.7, -3.5, 0), V(0, 0, 1), 7), math.radians(-157), math.radians(-126)), False)
sketch10.addGeometry(Part.ArcOfCircle(Part.Circle(V(0, 15.1, 0), V(0, 0, 1), 22.6), math.radians(-71.14), math.radians(-63.53)), False)
sketch10.addGeometry(Part.ArcOfCircle(Part.Circle(V(3.6, -7.8, 0), V(0, 0, 1), 7), math.radians(-8), math.radians(22)), False)
sketch10.addConstraint(Sketcher.Constraint("Coincident", 0, 2, 1, 2))
sketch10.addConstraint(Sketcher.Constraint("Coincident", 1, 1, 2, 1))
sketch10.addConstraint(Sketcher.Constraint("Coincident", 2, 2, 3, 2))
sketch10.addConstraint(Sketcher.Constraint("Coincident", 3, 1, 0, 1))
sketch10.addConstraint(Sketcher.Constraint("Equal", 1, 3))
sketch10.addConstraint(Sketcher.Constraint("PointOnObject", 2, 3, -2))
sketch10.addConstraint(Sketcher.Constraint("Distance", 0, Q("1 mm")))
sketch10.addConstraint(Sketcher.Constraint("Radius", 1, Q("7.00082 mm")))
sketch10.addConstraint(Sketcher.Constraint("Radius", 2, Q("22.59375 mm")))
sketch10.addConstraint(Sketcher.Constraint("DistanceY", 2, 2, -1, 1, Q("5.130601 mm")))
sketch10.addConstraint(Sketcher.Constraint("DistanceX", -1, 1, 1, 3, Q("13.740841 mm")))
sketch10.addConstraint(Sketcher.Constraint("DistanceY", -1, 1, 2, 3, Q("15.09375 mm")))
sketch10.addConstraint(Sketcher.Constraint("DistanceX", -1, 1, 0, 2, Q("9.594348 mm")))
sketch10.addConstraint(Sketcher.Constraint("DistanceY", 1, 1, -1, 1, Q("6.28716 mm")))
sketch10.addConstraint(Sketcher.Constraint("DistanceX", -1, 1, 3, 1, Q("10.517111 mm")))
pad10 = body.newObject("PartDesign::Pad", "Pad009")
pad10.Profile = sketch10
pad10.Length = 5.5
pad10.Reversed = True

# Sketch on XZ plane
sketch11 = body.newObject("Sketcher::SketchObject", "Sketch010")
sketch11.AttachmentSupport = (doc.getObject("XZ_Plane"), [""])
sketch11.MapMode = "FlatFace"
sketch11.addGeometry(Part.LineSegment(V(5.6, -10.4, 0), V(4.6, -10.6, 0)), False)
sketch11.addGeometry(Part.ArcOfCircle(Part.Circle(V(9.8, -5.9, 0), V(0, 0, 1), 7), math.radians(-168), math.radians(-138)), False)
sketch11.addGeometry(Part.ArcOfCircle(Part.Circle(V(0, 15.1, 0), V(0, 0, 1), 22.6), math.radians(-82.47), math.radians(-74.86)), False)
sketch11.addGeometry(Part.ArcOfCircle(Part.Circle(V(-1, -8, 0), V(0, 0, 1), 7), math.radians(-20), math.radians(11)), False)
sketch11.addConstraint(Sketcher.Constraint("Coincident", 0, 2, 1, 2))
sketch11.addConstraint(Sketcher.Constraint("Coincident", 1, 1, 2, 1))
sketch11.addConstraint(Sketcher.Constraint("Coincident", 2, 2, 3, 2))
sketch11.addConstraint(Sketcher.Constraint("Coincident", 3, 1, 0, 1))
sketch11.addConstraint(Sketcher.Constraint("Equal", 1, 3))
sketch11.addConstraint(Sketcher.Constraint("PointOnObject", 2, 3, -2))
sketch11.addConstraint(Sketcher.Constraint("Distance", 0, Q("1 mm")))
sketch11.addConstraint(Sketcher.Constraint("Radius", 1, Q("7.00082 mm")))
sketch11.addConstraint(Sketcher.Constraint("Radius", 2, Q("22.59375 mm")))
sketch11.addConstraint(Sketcher.Constraint("DistanceX", 0, 2, 3, 1, Q("0.9805 mm")))
sketch11.addConstraint(Sketcher.Constraint("DistanceY", 1, 3, -1, 1, Q("5.873538 mm")))
sketch11.addConstraint(Sketcher.Constraint("DistanceY", -1, 1, 2, 3, Q("15.09375 mm")))
sketch11.addConstraint(Sketcher.Constraint("DistanceX", 3, 3, -1, 1, Q("0.973761 mm")))
sketch11.addConstraint(Sketcher.Constraint("DistanceY", 3, 3, -1, 1, Q("8.035221 mm")))
sketch11.addConstraint(Sketcher.Constraint("DistanceX", -1, 1, 1, 1, Q("2.958919 mm")))
pad11 = body.newObject("PartDesign::Pad", "Pad010")
pad11.Profile = sketch11
pad11.Length = 5.5
pad11.Reversed = True

# Sketch on XZ plane
sketch12 = body.newObject("Sketcher::SketchObject", "Sketch011")
sketch12.AttachmentSupport = (doc.getObject("XZ_Plane"), [""])
sketch12.MapMode = "FlatFace"
sketch12.addGeometry(Part.LineSegment(V(0.5, -11, 0), V(-0.5, -11, 0)), False)
sketch12.addGeometry(Part.ArcOfCircle(Part.Circle(V(5.5, -7.4, 0), V(0, 0, 1), 7), math.radians(-180), math.radians(-149)), False)
sketch12.addGeometry(Part.ArcOfCircle(Part.Circle(V(0, 15.1, 0), V(0, 0, 1), 22.6), math.radians(-93.81), math.radians(-86.19)), False)
sketch12.addGeometry(Part.ArcOfCircle(Part.Circle(V(-5.5, -7.4, 0), V(0, 0, 1), 7), math.radians(-31), math.radians(0)), False)
sketch12.addConstraint(Sketcher.Constraint("Coincident", 0, 2, 1, 2))
sketch12.addConstraint(Sketcher.Constraint("Coincident", 1, 1, 2, 1))
sketch12.addConstraint(Sketcher.Constraint("Coincident", 2, 2, 3, 2))
sketch12.addConstraint(Sketcher.Constraint("Coincident", 3, 1, 0, 1))
sketch12.addConstraint(Sketcher.Constraint("Horizontal", 0))
sketch12.addConstraint(Sketcher.Constraint("Equal", 1, 3))
sketch12.addConstraint(Sketcher.Constraint("Symmetric", 1, 3, 3, 3, -2))
sketch12.addConstraint(Sketcher.Constraint("PointOnObject", 2, 3, -2))
sketch12.addConstraint(Sketcher.Constraint("DistanceX", 0, 2, 0, 1, Q("1 mm")))
sketch12.addConstraint(Sketcher.Constraint("DistanceY", 0, 2, -1, 1, Q("11 mm")))
sketch12.addConstraint(Sketcher.Constraint("DistanceX", 3, 3, 1, 3, Q("11 mm")))
sketch12.addConstraint(Sketcher.Constraint("Radius", 1, Q("7.00082 mm")))
sketch12.addConstraint(Sketcher.Constraint("Radius", 2, Q("22.59375 mm")))
sketch12.addConstraint(Sketcher.Constraint("DistanceY", -1, 1, 2, 3, Q("15.09375 mm")))
pad12 = body.newObject("PartDesign::Pad", "Pad011")
pad12.Profile = sketch12
pad12.Length = 5.5
pad12.Reversed = True

# Sketch on XZ plane
sketch13 = body.newObject("Sketcher::SketchObject", "Sketch012")
sketch13.AttachmentSupport = (doc.getObject("XZ_Plane"), [""])
sketch13.MapMode = "FlatFace"
sketch13.addGeometry(Part.LineSegment(V(-4.6, -10.6, 0), V(-5.6, -10.4, 0)), False)
sketch13.addGeometry(Part.ArcOfCircle(Part.Circle(V(1, -8, 0), V(0, 0, 1), 7), math.radians(169), math.radians(200)), False)
sketch13.addGeometry(Part.ArcOfCircle(Part.Circle(V(0, 15.1, 0), V(0, 0, 1), 22.6), math.radians(-105.14), math.radians(-97.53)), False)
sketch13.addGeometry(Part.ArcOfCircle(Part.Circle(V(-9.8, -5.9, 0), V(0, 0, 1), 7), math.radians(-42), math.radians(-12)), False)
sketch13.addConstraint(Sketcher.Constraint("Coincident", 0, 2, 1, 2))
sketch13.addConstraint(Sketcher.Constraint("Coincident", 1, 1, 2, 1))
sketch13.addConstraint(Sketcher.Constraint("Coincident", 2, 2, 3, 2))
sketch13.addConstraint(Sketcher.Constraint("Coincident", 3, 1, 0, 1))
sketch13.addConstraint(Sketcher.Constraint("Equal", 1, 3))
sketch13.addConstraint(Sketcher.Constraint("PointOnObject", 2, 3, -2))
sketch13.addConstraint(Sketcher.Constraint("Distance", 0, Q("1 mm")))
sketch13.addConstraint(Sketcher.Constraint("Radius", 1, Q("7.00082 mm")))
sketch13.addConstraint(Sketcher.Constraint("Radius", 2, Q("22.59375 mm")))
sketch13.addConstraint(Sketcher.Constraint("DistanceX", 0, 2, 3, 1, Q("0.9805 mm")))
sketch13.addConstraint(Sketcher.Constraint("DistanceX", -1, 1, 1, 3, Q("0.973761 mm")))
sketch13.addConstraint(Sketcher.Constraint("DistanceY", 1, 3, -1, 1, Q("8.035221 mm")))
sketch13.addConstraint(Sketcher.Constraint("DistanceY", -1, 1, 2, 3, Q("15.09375 mm")))
sketch13.addConstraint(Sketcher.Constraint("DistanceY", 3, 3, -1, 1, Q("5.873538 mm")))
sketch13.addConstraint(Sketcher.Constraint("DistanceX", 2, 2, -1, 1, Q("2.958919 mm")))
pad13 = body.newObject("PartDesign::Pad", "Pad012")
pad13.Profile = sketch13
pad13.Length = 5.5
pad13.Reversed = True

# Sketch on XZ plane
sketch14 = body.newObject("Sketcher::SketchObject", "Sketch013")
sketch14.AttachmentSupport = (doc.getObject("XZ_Plane"), [""])
sketch14.MapMode = "FlatFace"
sketch14.addGeometry(Part.LineSegment(V(-9.6, -9.2, 0), V(-10.5, -8.8, 0)), False)
sketch14.addGeometry(Part.ArcOfCircle(Part.Circle(V(-3.6, -7.8, 0), V(0, 0, 1), 7), math.radians(158), math.radians(188)), False)
sketch14.addGeometry(Part.ArcOfCircle(Part.Circle(V(0, 15.1, 0), V(0, 0, 1), 22.6), math.radians(-116.47), math.radians(-108.86)), False)
sketch14.addGeometry(Part.ArcOfCircle(Part.Circle(V(-13.7, -3.5, 0), V(0, 0, 1), 7), math.radians(-54), math.radians(-23)), False)
sketch14.addConstraint(Sketcher.Constraint("Coincident", 0, 2, 1, 2))
sketch14.addConstraint(Sketcher.Constraint("Coincident", 1, 1, 2, 1))
sketch14.addConstraint(Sketcher.Constraint("Coincident", 2, 2, 3, 2))
sketch14.addConstraint(Sketcher.Constraint("Coincident", 3, 1, 0, 1))
sketch14.addConstraint(Sketcher.Constraint("Equal", 1, 3))
sketch14.addConstraint(Sketcher.Constraint("PointOnObject", 2, 3, -2))
sketch14.addConstraint(Sketcher.Constraint("Distance", 0, Q("1 mm")))
sketch14.addConstraint(Sketcher.Constraint("Radius", 1, Q("7.00082 mm")))
sketch14.addConstraint(Sketcher.Constraint("Radius", 2, Q("22.59375 mm")))
sketch14.addConstraint(Sketcher.Constraint("DistanceY", 1, 1, -1, 1, Q("5.130601 mm")))
sketch14.addConstraint(Sketcher.Constraint("DistanceY", -1, 1, 2, 3, Q("15.09375 mm")))
sketch14.addConstraint(Sketcher.Constraint("DistanceX", 3, 3, -1, 1, Q("13.740841 mm")))
sketch14.addConstraint(Sketcher.Constraint("DistanceX", 0, 2, -1, 1, Q("10.517111 mm")))
sketch14.addConstraint(Sketcher.Constraint("DistanceY", 2, 2, -1, 1, Q("6.28716 mm")))
sketch14.addConstraint(Sketcher.Constraint("DistanceX", 3, 1, -1, 1, Q("9.594348 mm")))
pad14 = body.newObject("PartDesign::Pad", "Pad013")
pad14.Profile = sketch14
pad14.Length = 5.5
pad14.Reversed = True

# Sketch on XZ plane
sketch15 = body.newObject("Sketcher::SketchObject", "Sketch014")
sketch15.AttachmentSupport = (doc.getObject("XZ_Plane"), [""])
sketch15.MapMode = "FlatFace"
sketch15.addGeometry(Part.LineSegment(V(-14.2, -6.8, 0), V(-15, -6.3, 0)), False)
sketch15.addGeometry(Part.ArcOfCircle(Part.Circle(V(-8, -6.6, 0), V(0, 0, 1), 7), math.radians(146), math.radians(177)), False)
sketch15.addGeometry(Part.ArcOfCircle(Part.Circle(V(0, 15.1, 0), V(0, 0, 1), 22.6), math.radians(-127.81), math.radians(-120.19)), False)
sketch15.addGeometry(Part.ArcOfCircle(Part.Circle(V(-17.1, -0.5, 0), V(0, 0, 1), 7), math.radians(-65), math.radians(-34)), False)
sketch15.addConstraint(Sketcher.Constraint("Coincident", 0, 2, 1, 2))
sketch15.addConstraint(Sketcher.Constraint("Coincident", 1, 1, 2, 1))
sketch15.addConstraint(Sketcher.Constraint("Coincident", 2, 2, 3, 2))
sketch15.addConstraint(Sketcher.Constraint("Coincident", 3, 1, 0, 1))
sketch15.addConstraint(Sketcher.Constraint("Equal", 1, 3))
sketch15.addConstraint(Sketcher.Constraint("PointOnObject", 2, 3, -2))
sketch15.addConstraint(Sketcher.Constraint("Angle", 0, Q("146 deg")))
sketch15.addConstraint(Sketcher.Constraint("Distance", 0, Q("1 mm")))
sketch15.addConstraint(Sketcher.Constraint("Radius", 1, Q("7.00082 mm")))
sketch15.addConstraint(Sketcher.Constraint("Radius", 2, Q("22.59375 mm")))
sketch15.addConstraint(Sketcher.Constraint("DistanceX", 3, 3, 0, 2, Q("2.128099 mm")))
sketch15.addConstraint(Sketcher.Constraint("DistanceY", 1, 3, 0, 2, Q("0.3647 mm")))
sketch15.addConstraint(Sketcher.Constraint("DistanceY", -1, 1, 2, 3, Q("15.09375 mm")))
sketch15.addConstraint(Sketcher.Constraint("DistanceY", 3, 3, -1, 1, Q("0.472931 mm")))
sketch15.addConstraint(Sketcher.Constraint("DistanceX", 0, 2, -1, 1, Q("15.005959 mm")))
pad15 = body.newObject("PartDesign::Pad", "Pad014")
pad15.Profile = sketch15
pad15.Length = 5.5
pad15.Reversed = True

# Sketch on XZ plane
sketch16 = body.newObject("Sketcher::SketchObject", "Sketch015")
sketch16.AttachmentSupport = (doc.getObject("XZ_Plane"), [""])
sketch16.MapMode = "FlatFace"
sketch16.AttachmentOffset = App.Placement(V(0, 0, -5.5), App.Rotation())
sketch16.addGeometry(Part.Circle(V(0, 0, 0), V(0, 0, 1), 4), False)
sketch16.addConstraint(Sketcher.Constraint("Coincident", 0, 3, -1, 1))
sketch16.addConstraint(Sketcher.Constraint("Diameter", 0, Q("8 mm")))
pocket1 = body.newObject("PartDesign::Pocket", "Pocket")
pocket1.Profile = sketch16
pocket1.Length = 3.5
pocket1.Reversed = True

# Sketch on XZ plane
sketch17 = body.newObject("Sketcher::SketchObject", "Sketch016")
sketch17.AttachmentSupport = (doc.getObject("XZ_Plane"), [""])
sketch17.MapMode = "FlatFace"
sketch17.AttachmentOffset = App.Placement(V(0, 0, -2), App.Rotation())
sketch17.addGeometry(Part.LineSegment(V(-1.3, -1.5, 0), V(-3.7, -1.5, 0)), False)
sketch17.addGeometry(Part.ArcOfCircle(Part.Circle(V(0, 0, 0), V(0, 0, 1), 4), math.radians(158), math.radians(202)), False)
sketch17.addGeometry(Part.LineSegment(V(-3.7, 1.5, 0), V(-1.3, 1.5, 0)), False)
sketch17.addGeometry(Part.ArcOfCircle(Part.Circle(V(0, 0, 0), V(0, 0, 1), 2), math.radians(49), math.radians(131)), False)
sketch17.addGeometry(Part.LineSegment(V(1.3, 1.5, 0), V(3.7, 1.5, 0)), False)
sketch17.addGeometry(Part.ArcOfCircle(Part.Circle(V(0, 0, 0), V(0, 0, 1), 4), math.radians(-22), math.radians(22)), False)
sketch17.addGeometry(Part.LineSegment(V(3.7, -1.5, 0), V(1.3, -1.5, 0)), False)
sketch17.addGeometry(Part.ArcOfCircle(Part.Circle(V(0, 0, 0), V(0, 0, 1), 2), math.radians(-131), math.radians(-49)), False)
sketch17.addConstraint(Sketcher.Constraint("Coincident", 0, 2, 1, 2))
sketch17.addConstraint(Sketcher.Constraint("Coincident", 1, 1, 2, 1))
sketch17.addConstraint(Sketcher.Constraint("Coincident", 2, 2, 3, 2))
sketch17.addConstraint(Sketcher.Constraint("Coincident", 3, 1, 4, 1))
sketch17.addConstraint(Sketcher.Constraint("Coincident", 4, 2, 5, 2))
sketch17.addConstraint(Sketcher.Constraint("Coincident", 5, 1, 6, 1))
sketch17.addConstraint(Sketcher.Constraint("Coincident", 6, 2, 7, 2))
sketch17.addConstraint(Sketcher.Constraint("Coincident", 7, 1, 0, 1))
sketch17.addConstraint(Sketcher.Constraint("Horizontal", 0))
sketch17.addConstraint(Sketcher.Constraint("Horizontal", 2))
sketch17.addConstraint(Sketcher.Constraint("Horizontal", 4))
sketch17.addConstraint(Sketcher.Constraint("Horizontal", 6))
sketch17.addConstraint(Sketcher.Constraint("Coincident", 1, 3, -1, 1))
sketch17.addConstraint(Sketcher.Constraint("Coincident", 3, 3, -1, 1))
sketch17.addConstraint(Sketcher.Constraint("Coincident", 5, 3, -1, 1))
sketch17.addConstraint(Sketcher.Constraint("Coincident", 7, 3, -1, 1))
sketch17.addConstraint(Sketcher.Constraint("Equal", 1, 5))
sketch17.addConstraint(Sketcher.Constraint("Equal", 3, 7))
sketch17.addConstraint(Sketcher.Constraint("Horizontal", 2, 2, 3, 1))
sketch17.addConstraint(Sketcher.Constraint("Horizontal", 0, 2, 5, 1))
sketch17.addConstraint(Sketcher.Constraint("Vertical", 0, 2, 1, 1))
sketch17.addConstraint(Sketcher.Constraint("Radius", 1, Q("4 mm")))
sketch17.addConstraint(Sketcher.Constraint("Radius", 3, Q("2 mm")))
sketch17.addConstraint(Sketcher.Constraint("DistanceY", 0, 2, 1, 1, Q("3 mm")))
pocket2 = body.newObject("PartDesign::Pocket", "Pocket001")
pocket2.Profile = sketch17
pocket2.Type = "ThroughAll"
pocket2.Reversed = True
doc.recompute()

linearpattern = body.newObject("PartDesign::LinearPattern", "LinearPattern")
linearpattern.Originals = [pocket1, pocket2]
linearpattern.Direction = (doc.getObject("X_Axis"), [""])
linearpattern.Mode = "offset"
linearpattern.Offset = 15
linearpattern.Occurrences = 2
linearpattern.Reversed = True
body.Tip = linearpattern
doc.recompute()

linearpattern2 = body.newObject("PartDesign::LinearPattern", "LinearPattern001")
linearpattern2.Originals = [pocket1, pocket2]
linearpattern2.Direction = (doc.getObject("X_Axis"), [""])
linearpattern2.Mode = "offset"
linearpattern2.Offset = 15
linearpattern2.Occurrences = 2
body.Tip = linearpattern2

# Sketch on XZ plane
sketch18 = body.newObject("Sketcher::SketchObject", "Sketch017")
sketch18.AttachmentSupport = (doc.getObject("XZ_Plane"), [""])
sketch18.MapMode = "FlatFace"
sketch18.AttachmentOffset = App.Placement(V(0, 0, -1.5), App.Rotation())
sketch18.addGeometry(Part.Circle(V(-26.4, -9.5, 0), V(0, 0, 1), 2), False)
sketch18.addConstraint(Sketcher.Constraint("Diameter", 0, Q("4 mm")))
sketch18.addConstraint(Sketcher.Constraint("DistanceX", 0, 3, -1, 1, Q("26.4 mm")))
sketch18.addConstraint(Sketcher.Constraint("DistanceY", 0, 3, -1, 1, Q("9.5 mm")))
pad16 = body.newObject("PartDesign::Pad", "Pad015")
pad16.Profile = sketch18
pad16.Length = 4
pad16.Reversed = True

# Sketch on XZ plane
sketch19 = body.newObject("Sketcher::SketchObject", "Sketch018")
sketch19.AttachmentSupport = (doc.getObject("XZ_Plane"), [""])
sketch19.MapMode = "FlatFace"
sketch19.AttachmentOffset = App.Placement(V(0, 0, -5.5), App.Rotation())
sketch19.addGeometry(Part.Circle(V(-26.4, -9.5, 0), V(0, 0, 1), 2), False)
sketch19.addConstraint(Sketcher.Constraint("Diameter", 0, Q("4 mm")))
sketch19.addConstraint(Sketcher.Constraint("DistanceX", 0, 3, -1, 1, Q("26.4 mm")))
sketch19.addConstraint(Sketcher.Constraint("DistanceY", 0, 3, -1, 1, Q("9.5 mm")))

# Sketch on XZ plane
sketch20 = body.newObject("Sketcher::SketchObject", "Sketch019")
sketch20.AttachmentSupport = (doc.getObject("XZ_Plane"), [""])
sketch20.MapMode = "FlatFace"
sketch20.AttachmentOffset = App.Placement(V(0, 0, -4.5), App.Rotation())
sketch20.addGeometry(Part.Circle(V(-26.4, -9.5, 0), V(0, 0, 1), 2.2), False)
sketch20.addConstraint(Sketcher.Constraint("Diameter", 0, Q("4.5 mm")))
sketch20.addConstraint(Sketcher.Constraint("DistanceX", 0, 3, -1, 1, Q("26.4 mm")))
sketch20.addConstraint(Sketcher.Constraint("DistanceY", 0, 3, -1, 1, Q("9.5 mm")))

additiveloft = body.newObject("PartDesign::AdditiveLoft", "AdditiveLoft")
additiveloft.Profile = sketch19
additiveloft.Sections = [sketch20]

# Sketch on XZ plane
sketch21 = body.newObject("Sketcher::SketchObject", "Sketch020")
sketch21.AttachmentSupport = (doc.getObject("XZ_Plane"), [""])
sketch21.MapMode = "FlatFace"
sketch21.AttachmentOffset = App.Placement(V(0, 0, -5.5), App.Rotation())
sketch21.addGeometry(Part.LineSegment(V(-28.7, -7.5, 0), V(-23.6, -10.7, 0)), False)
sketch21.addGeometry(Part.LineSegment(V(-23.6, -10.7, 0), V(-24.1, -11.5, 0)), False)
sketch21.addGeometry(Part.LineSegment(V(-24.1, -11.5, 0), V(-29.2, -8.3, 0)), False)
sketch21.addGeometry(Part.LineSegment(V(-29.2, -8.3, 0), V(-28.7, -7.5, 0)), False)
sketch21.addConstraint(Sketcher.Constraint("Coincident", 0, 2, 1, 1))
sketch21.addConstraint(Sketcher.Constraint("Coincident", 1, 2, 2, 1))
sketch21.addConstraint(Sketcher.Constraint("Coincident", 2, 2, 3, 1))
sketch21.addConstraint(Sketcher.Constraint("Coincident", 3, 2, 0, 1))
sketch21.addConstraint(Sketcher.Constraint("Perpendicular", 0, 1))
sketch21.addConstraint(Sketcher.Constraint("Perpendicular", 1, 2))
sketch21.addConstraint(Sketcher.Constraint("Perpendicular", 2, 3))
sketch21.addConstraint(Sketcher.Constraint("Distance", 0, Q("6 mm")))
sketch21.addConstraint(Sketcher.Constraint("Distance", 1, Q("1 mm")))
sketch21.addConstraint(Sketcher.Constraint("DistanceX", 1, 2, 0, 2, Q("0.529999 mm")))
sketch21.addConstraint(Sketcher.Constraint("DistanceX", 0, 2, -1, 1, Q("23.591006 mm")))
sketch21.addConstraint(Sketcher.Constraint("DistanceY", 0, 2, -1, 1, Q("10.665998 mm")))
pocket3 = body.newObject("PartDesign::Pocket", "Pocket002")
pocket3.Profile = sketch21
pocket3.Length = 4
pocket3.Reversed = True
doc.recompute()

mirrored = body.newObject("PartDesign::Mirrored", "Mirrored")
mirrored.Originals = [pad16, additiveloft, pocket3]
mirrored.MirrorPlane = (doc.getObject("YZ_Plane"), [""])
body.Tip = mirrored

doc.recompute()
